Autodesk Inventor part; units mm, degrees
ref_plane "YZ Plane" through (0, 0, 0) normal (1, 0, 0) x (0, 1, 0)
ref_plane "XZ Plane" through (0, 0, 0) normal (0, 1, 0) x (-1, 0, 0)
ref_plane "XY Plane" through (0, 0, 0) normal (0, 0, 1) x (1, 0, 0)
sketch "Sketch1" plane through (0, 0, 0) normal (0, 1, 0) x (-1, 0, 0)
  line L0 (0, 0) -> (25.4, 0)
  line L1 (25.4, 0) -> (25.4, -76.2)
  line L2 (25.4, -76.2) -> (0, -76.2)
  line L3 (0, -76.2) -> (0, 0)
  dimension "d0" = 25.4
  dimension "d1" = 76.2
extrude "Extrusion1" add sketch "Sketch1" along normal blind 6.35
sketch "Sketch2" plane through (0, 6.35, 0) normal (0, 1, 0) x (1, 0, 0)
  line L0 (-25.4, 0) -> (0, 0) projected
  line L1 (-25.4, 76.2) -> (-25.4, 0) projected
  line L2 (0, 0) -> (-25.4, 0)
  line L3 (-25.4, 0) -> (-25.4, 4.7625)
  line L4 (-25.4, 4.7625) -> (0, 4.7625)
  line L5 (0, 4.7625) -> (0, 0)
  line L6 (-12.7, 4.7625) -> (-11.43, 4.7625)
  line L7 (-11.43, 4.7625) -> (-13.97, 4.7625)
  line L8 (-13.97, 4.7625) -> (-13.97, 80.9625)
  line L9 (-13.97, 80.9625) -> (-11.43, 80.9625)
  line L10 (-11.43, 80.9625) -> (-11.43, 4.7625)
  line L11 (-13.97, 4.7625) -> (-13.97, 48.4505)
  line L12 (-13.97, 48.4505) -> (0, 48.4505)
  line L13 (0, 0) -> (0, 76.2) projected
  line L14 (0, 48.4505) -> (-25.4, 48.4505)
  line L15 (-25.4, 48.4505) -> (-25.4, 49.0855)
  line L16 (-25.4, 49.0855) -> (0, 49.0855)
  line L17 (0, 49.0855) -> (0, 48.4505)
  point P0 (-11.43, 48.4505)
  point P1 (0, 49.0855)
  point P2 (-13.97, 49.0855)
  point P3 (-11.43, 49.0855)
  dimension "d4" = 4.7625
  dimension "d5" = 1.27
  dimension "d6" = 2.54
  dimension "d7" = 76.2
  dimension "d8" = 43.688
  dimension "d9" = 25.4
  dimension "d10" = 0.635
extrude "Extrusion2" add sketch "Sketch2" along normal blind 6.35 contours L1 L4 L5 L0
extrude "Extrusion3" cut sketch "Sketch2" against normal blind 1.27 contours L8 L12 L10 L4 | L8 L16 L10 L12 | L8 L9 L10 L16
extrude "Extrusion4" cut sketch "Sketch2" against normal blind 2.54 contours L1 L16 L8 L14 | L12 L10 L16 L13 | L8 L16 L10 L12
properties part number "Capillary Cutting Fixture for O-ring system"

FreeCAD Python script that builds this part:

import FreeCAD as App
import Part
import Sketcher

V = App.Vector
Q = App.Units.Quantity


def add_polygon(sketch, points):
    """Adds a closed chain of lines whose ends are joined by coincident constraints."""
    first, n = sketch.GeometryCount, len(points)
    for a, b in zip(points, points[1:] + points[:1]):
        sketch.addGeometry(Part.LineSegment(App.Vector(*a, 0), App.Vector(*b, 0)), False)
    for i in range(n):
        sketch.addConstraint(Sketcher.Constraint("Coincident", first + i, 2, first + (i + 1) % n, 1))

doc = App.newDocument("Part")
params = doc.addObject("Spreadsheet::Sheet", "Params")
for row, (alias, value) in enumerate([
    ("sketch1_width", "1 in"),
    ("sketch1_height", "3 in"),
    ("pad1_length", "0.25 in"),
    ("sketch2_width", "1 in"),
    ("sketch2_height", "0.1875 in"),
    ("pad2_length", "0.25 in"),
    ("sketch3_height", "3 in"),
    ("sketch3_width", "0.1 in"),
    ("pocket1_length", "0.05 in"),
    ("sketch4_width", "1 in"),
    ("sketch4_height", "0.025 in"),
    ("pocket2_length", "0.1 in"),
], start=1):
    params.set(f"A{row}", alias)
    params.set(f"B{row}", "=" + value)
    params.setAlias(f"B{row}", alias)

body = doc.addObject("PartDesign::Body", "Body")

sketch1 = body.newObject("Sketcher::SketchObject", "Sketch")
sketch1.AttachmentSupport = (doc.getObject("XZ_Plane"), [""])
sketch1.MapMode = "FlatFace"
add_polygon(sketch1, [(-25, 0), (0, 0), (0, -76), (-25, -76)])
sketch1.addConstraint(Sketcher.Constraint("Horizontal", 0))
sketch1.addConstraint(Sketcher.Constraint("Vertical", 1))
sketch1.addConstraint(Sketcher.Constraint("Horizontal", 2))
sketch1.addConstraint(Sketcher.Constraint("Vertical", 3))
sketch1.addConstraint(Sketcher.Constraint("Coincident", 0, 2, -1, 1))
sketch1.addConstraint(Sketcher.Constraint("DistanceX", 0, 1, 0, 2, Q("1 in")))
sketch1.addConstraint(Sketcher.Constraint("DistanceY", 1, 2, 1, 1, Q("3 in")))
sketch1.setExpression("Constraints[9]", "Params.sketch1_width")
sketch1.setExpression("Constraints[10]", "Params.sketch1_height")
pad1 = body.newObject("PartDesign::Pad", "Pad")
pad1.Profile = sketch1
pad1.setExpression("Length", "Params.pad1_length")
pad1.Reversed = True

sketch2 = body.newObject("Sketcher::SketchObject", "Sketch001")
sketch2.AttachmentSupport = (doc.getObject("XZ_Plane"), [""])
sketch2.MapMode = "FlatFace"
sketch2.AttachmentOffset = App.Placement(V(0, 0, -0.25 * 25.4), App.Rotation())
add_polygon(sketch2, [(-25.4, -4.8), (-25.4, 0), (0, 0), (0, -4.8)])
sketch2.addConstraint(Sketcher.Constraint("Vertical", 0))
sketch2.addConstraint(Sketcher.Constraint("Horizontal", 1))
sketch2.addConstraint(Sketcher.Constraint("Vertical", 2))
sketch2.addConstraint(Sketcher.Constraint("Horizontal", 3))
sketch2.addConstraint(Sketcher.Constraint("Coincident", 1, 2, -1, 1))
sketch2.addConstraint(Sketcher.Constraint("DistanceX", 1, 1, 1, 2, Q("1 in")))
sketch2.addConstraint(Sketcher.Constraint("DistanceY", 0, 1, 0, 2, Q("0.1875 in")))
sketch2.setExpression("Constraints[9]", "Params.sketch2_width")
sketch2.setExpression("Constraints[10]", "Params.sketch2_height")
pad2 = body.newObject("PartDesign::Pad", "Pad001")
pad2.Profile = sketch2
pad2.setExpression("Length", "Params.pad2_length")
pad2.Reversed = True

sketch3 = body.newObject("Sketcher::SketchObject", "Sketch002")
sketch3.AttachmentSupport = (doc.getObject("XZ_Plane"), [""])
sketch3.MapMode = "FlatFace"
sketch3.AttachmentOffset = App.Placement(V(0, 0, -0.25 * 25.4), App.Rotation())
add_polygon(sketch3, [(-14, -4.8), (-11.4, -4.8), (-11.4, -81), (-14, -81)])
sketch3.addConstraint(Sketcher.Constraint("Horizontal", 0))
sketch3.addConstraint(Sketcher.Constraint("Vertical", 1))
sketch3.addConstraint(Sketcher.Constraint("Horizontal", 2))
sketch3.addConstraint(Sketcher.Constraint("Vertical", 3))
sketch3.addConstraint(Sketcher.Constraint("DistanceY", 1, 2, 1, 1, Q("3 in")))
sketch3.addConstraint(Sketcher.Constraint("DistanceX", 0, 1, 0, 2, Q("0.1 in")))
sketch3.addConstraint(Sketcher.Constraint("DistanceY", 0, 2, -1, 1, Q("0.1875 in")))
sketch3.addConstraint(Sketcher.Constraint("DistanceX", 0, 2, -1, 1, Q("0.45 in")))
sketch3.setExpression("Constraints[8]", "Params.sketch3_height")
sketch3.setExpression("Constraints[9]", "Params.sketch3_width")
pocket1 = body.newObject("PartDesign::Pocket", "Pocket")
pocket1.Profile = sketch3
pocket1.setExpression("Length", "Params.pocket1_length")
pocket1.Reversed = True

sketch4 = body.newObject("Sketcher::SketchObject", "Sketch003")
sketch4.AttachmentSupport = (doc.getObject("XZ_Plane"), [""])
sketch4.MapMode = "FlatFace"
sketch4.AttachmentOffset = App.Placement(V(0, 0, -0.25 * 25.4), App.Rotation())
add_polygon(sketch4, [(-25.4, -49.1), (-25.4, -48.5), (0, -48.5), (0, -49.1)])
sketch4.addConstraint(Sketcher.Constraint("Vertical", 0))
sketch4.addConstraint(Sketcher.Constraint("Horizontal", 1))
sketch4.addConstraint(Sketcher.Constraint("Vertical", 2))
sketch4.addConstraint(Sketcher.Constraint("Horizontal", 3))
sketch4.addConstraint(Sketcher.Constraint("PointOnObject", 1, 2, -2))
sketch4.addConstraint(Sketcher.Constraint("DistanceX", 1, 1, 1, 2, Q("1 in")))
sketch4.addConstraint(Sketcher.Constraint("DistanceY", 0, 1, 0, 2, Q("0.025 in")))
sketch4.addConstraint(Sketcher.Constraint("DistanceY", 0, 2, -1, 1, Q("1.9075 in")))
sketch4.setExpression("Constraints[9]", "Params.sketch4_width")
sketch4.setExpression("Constraints[10]", "Params.sketch4_height")
pocket2 = body.newObject("PartDesign::Pocket", "Pocket001")
pocket2.Profile = sketch4
pocket2.setExpression("Length", "Params.pocket2_length")
pocket2.Reversed = True

doc.recompute()
